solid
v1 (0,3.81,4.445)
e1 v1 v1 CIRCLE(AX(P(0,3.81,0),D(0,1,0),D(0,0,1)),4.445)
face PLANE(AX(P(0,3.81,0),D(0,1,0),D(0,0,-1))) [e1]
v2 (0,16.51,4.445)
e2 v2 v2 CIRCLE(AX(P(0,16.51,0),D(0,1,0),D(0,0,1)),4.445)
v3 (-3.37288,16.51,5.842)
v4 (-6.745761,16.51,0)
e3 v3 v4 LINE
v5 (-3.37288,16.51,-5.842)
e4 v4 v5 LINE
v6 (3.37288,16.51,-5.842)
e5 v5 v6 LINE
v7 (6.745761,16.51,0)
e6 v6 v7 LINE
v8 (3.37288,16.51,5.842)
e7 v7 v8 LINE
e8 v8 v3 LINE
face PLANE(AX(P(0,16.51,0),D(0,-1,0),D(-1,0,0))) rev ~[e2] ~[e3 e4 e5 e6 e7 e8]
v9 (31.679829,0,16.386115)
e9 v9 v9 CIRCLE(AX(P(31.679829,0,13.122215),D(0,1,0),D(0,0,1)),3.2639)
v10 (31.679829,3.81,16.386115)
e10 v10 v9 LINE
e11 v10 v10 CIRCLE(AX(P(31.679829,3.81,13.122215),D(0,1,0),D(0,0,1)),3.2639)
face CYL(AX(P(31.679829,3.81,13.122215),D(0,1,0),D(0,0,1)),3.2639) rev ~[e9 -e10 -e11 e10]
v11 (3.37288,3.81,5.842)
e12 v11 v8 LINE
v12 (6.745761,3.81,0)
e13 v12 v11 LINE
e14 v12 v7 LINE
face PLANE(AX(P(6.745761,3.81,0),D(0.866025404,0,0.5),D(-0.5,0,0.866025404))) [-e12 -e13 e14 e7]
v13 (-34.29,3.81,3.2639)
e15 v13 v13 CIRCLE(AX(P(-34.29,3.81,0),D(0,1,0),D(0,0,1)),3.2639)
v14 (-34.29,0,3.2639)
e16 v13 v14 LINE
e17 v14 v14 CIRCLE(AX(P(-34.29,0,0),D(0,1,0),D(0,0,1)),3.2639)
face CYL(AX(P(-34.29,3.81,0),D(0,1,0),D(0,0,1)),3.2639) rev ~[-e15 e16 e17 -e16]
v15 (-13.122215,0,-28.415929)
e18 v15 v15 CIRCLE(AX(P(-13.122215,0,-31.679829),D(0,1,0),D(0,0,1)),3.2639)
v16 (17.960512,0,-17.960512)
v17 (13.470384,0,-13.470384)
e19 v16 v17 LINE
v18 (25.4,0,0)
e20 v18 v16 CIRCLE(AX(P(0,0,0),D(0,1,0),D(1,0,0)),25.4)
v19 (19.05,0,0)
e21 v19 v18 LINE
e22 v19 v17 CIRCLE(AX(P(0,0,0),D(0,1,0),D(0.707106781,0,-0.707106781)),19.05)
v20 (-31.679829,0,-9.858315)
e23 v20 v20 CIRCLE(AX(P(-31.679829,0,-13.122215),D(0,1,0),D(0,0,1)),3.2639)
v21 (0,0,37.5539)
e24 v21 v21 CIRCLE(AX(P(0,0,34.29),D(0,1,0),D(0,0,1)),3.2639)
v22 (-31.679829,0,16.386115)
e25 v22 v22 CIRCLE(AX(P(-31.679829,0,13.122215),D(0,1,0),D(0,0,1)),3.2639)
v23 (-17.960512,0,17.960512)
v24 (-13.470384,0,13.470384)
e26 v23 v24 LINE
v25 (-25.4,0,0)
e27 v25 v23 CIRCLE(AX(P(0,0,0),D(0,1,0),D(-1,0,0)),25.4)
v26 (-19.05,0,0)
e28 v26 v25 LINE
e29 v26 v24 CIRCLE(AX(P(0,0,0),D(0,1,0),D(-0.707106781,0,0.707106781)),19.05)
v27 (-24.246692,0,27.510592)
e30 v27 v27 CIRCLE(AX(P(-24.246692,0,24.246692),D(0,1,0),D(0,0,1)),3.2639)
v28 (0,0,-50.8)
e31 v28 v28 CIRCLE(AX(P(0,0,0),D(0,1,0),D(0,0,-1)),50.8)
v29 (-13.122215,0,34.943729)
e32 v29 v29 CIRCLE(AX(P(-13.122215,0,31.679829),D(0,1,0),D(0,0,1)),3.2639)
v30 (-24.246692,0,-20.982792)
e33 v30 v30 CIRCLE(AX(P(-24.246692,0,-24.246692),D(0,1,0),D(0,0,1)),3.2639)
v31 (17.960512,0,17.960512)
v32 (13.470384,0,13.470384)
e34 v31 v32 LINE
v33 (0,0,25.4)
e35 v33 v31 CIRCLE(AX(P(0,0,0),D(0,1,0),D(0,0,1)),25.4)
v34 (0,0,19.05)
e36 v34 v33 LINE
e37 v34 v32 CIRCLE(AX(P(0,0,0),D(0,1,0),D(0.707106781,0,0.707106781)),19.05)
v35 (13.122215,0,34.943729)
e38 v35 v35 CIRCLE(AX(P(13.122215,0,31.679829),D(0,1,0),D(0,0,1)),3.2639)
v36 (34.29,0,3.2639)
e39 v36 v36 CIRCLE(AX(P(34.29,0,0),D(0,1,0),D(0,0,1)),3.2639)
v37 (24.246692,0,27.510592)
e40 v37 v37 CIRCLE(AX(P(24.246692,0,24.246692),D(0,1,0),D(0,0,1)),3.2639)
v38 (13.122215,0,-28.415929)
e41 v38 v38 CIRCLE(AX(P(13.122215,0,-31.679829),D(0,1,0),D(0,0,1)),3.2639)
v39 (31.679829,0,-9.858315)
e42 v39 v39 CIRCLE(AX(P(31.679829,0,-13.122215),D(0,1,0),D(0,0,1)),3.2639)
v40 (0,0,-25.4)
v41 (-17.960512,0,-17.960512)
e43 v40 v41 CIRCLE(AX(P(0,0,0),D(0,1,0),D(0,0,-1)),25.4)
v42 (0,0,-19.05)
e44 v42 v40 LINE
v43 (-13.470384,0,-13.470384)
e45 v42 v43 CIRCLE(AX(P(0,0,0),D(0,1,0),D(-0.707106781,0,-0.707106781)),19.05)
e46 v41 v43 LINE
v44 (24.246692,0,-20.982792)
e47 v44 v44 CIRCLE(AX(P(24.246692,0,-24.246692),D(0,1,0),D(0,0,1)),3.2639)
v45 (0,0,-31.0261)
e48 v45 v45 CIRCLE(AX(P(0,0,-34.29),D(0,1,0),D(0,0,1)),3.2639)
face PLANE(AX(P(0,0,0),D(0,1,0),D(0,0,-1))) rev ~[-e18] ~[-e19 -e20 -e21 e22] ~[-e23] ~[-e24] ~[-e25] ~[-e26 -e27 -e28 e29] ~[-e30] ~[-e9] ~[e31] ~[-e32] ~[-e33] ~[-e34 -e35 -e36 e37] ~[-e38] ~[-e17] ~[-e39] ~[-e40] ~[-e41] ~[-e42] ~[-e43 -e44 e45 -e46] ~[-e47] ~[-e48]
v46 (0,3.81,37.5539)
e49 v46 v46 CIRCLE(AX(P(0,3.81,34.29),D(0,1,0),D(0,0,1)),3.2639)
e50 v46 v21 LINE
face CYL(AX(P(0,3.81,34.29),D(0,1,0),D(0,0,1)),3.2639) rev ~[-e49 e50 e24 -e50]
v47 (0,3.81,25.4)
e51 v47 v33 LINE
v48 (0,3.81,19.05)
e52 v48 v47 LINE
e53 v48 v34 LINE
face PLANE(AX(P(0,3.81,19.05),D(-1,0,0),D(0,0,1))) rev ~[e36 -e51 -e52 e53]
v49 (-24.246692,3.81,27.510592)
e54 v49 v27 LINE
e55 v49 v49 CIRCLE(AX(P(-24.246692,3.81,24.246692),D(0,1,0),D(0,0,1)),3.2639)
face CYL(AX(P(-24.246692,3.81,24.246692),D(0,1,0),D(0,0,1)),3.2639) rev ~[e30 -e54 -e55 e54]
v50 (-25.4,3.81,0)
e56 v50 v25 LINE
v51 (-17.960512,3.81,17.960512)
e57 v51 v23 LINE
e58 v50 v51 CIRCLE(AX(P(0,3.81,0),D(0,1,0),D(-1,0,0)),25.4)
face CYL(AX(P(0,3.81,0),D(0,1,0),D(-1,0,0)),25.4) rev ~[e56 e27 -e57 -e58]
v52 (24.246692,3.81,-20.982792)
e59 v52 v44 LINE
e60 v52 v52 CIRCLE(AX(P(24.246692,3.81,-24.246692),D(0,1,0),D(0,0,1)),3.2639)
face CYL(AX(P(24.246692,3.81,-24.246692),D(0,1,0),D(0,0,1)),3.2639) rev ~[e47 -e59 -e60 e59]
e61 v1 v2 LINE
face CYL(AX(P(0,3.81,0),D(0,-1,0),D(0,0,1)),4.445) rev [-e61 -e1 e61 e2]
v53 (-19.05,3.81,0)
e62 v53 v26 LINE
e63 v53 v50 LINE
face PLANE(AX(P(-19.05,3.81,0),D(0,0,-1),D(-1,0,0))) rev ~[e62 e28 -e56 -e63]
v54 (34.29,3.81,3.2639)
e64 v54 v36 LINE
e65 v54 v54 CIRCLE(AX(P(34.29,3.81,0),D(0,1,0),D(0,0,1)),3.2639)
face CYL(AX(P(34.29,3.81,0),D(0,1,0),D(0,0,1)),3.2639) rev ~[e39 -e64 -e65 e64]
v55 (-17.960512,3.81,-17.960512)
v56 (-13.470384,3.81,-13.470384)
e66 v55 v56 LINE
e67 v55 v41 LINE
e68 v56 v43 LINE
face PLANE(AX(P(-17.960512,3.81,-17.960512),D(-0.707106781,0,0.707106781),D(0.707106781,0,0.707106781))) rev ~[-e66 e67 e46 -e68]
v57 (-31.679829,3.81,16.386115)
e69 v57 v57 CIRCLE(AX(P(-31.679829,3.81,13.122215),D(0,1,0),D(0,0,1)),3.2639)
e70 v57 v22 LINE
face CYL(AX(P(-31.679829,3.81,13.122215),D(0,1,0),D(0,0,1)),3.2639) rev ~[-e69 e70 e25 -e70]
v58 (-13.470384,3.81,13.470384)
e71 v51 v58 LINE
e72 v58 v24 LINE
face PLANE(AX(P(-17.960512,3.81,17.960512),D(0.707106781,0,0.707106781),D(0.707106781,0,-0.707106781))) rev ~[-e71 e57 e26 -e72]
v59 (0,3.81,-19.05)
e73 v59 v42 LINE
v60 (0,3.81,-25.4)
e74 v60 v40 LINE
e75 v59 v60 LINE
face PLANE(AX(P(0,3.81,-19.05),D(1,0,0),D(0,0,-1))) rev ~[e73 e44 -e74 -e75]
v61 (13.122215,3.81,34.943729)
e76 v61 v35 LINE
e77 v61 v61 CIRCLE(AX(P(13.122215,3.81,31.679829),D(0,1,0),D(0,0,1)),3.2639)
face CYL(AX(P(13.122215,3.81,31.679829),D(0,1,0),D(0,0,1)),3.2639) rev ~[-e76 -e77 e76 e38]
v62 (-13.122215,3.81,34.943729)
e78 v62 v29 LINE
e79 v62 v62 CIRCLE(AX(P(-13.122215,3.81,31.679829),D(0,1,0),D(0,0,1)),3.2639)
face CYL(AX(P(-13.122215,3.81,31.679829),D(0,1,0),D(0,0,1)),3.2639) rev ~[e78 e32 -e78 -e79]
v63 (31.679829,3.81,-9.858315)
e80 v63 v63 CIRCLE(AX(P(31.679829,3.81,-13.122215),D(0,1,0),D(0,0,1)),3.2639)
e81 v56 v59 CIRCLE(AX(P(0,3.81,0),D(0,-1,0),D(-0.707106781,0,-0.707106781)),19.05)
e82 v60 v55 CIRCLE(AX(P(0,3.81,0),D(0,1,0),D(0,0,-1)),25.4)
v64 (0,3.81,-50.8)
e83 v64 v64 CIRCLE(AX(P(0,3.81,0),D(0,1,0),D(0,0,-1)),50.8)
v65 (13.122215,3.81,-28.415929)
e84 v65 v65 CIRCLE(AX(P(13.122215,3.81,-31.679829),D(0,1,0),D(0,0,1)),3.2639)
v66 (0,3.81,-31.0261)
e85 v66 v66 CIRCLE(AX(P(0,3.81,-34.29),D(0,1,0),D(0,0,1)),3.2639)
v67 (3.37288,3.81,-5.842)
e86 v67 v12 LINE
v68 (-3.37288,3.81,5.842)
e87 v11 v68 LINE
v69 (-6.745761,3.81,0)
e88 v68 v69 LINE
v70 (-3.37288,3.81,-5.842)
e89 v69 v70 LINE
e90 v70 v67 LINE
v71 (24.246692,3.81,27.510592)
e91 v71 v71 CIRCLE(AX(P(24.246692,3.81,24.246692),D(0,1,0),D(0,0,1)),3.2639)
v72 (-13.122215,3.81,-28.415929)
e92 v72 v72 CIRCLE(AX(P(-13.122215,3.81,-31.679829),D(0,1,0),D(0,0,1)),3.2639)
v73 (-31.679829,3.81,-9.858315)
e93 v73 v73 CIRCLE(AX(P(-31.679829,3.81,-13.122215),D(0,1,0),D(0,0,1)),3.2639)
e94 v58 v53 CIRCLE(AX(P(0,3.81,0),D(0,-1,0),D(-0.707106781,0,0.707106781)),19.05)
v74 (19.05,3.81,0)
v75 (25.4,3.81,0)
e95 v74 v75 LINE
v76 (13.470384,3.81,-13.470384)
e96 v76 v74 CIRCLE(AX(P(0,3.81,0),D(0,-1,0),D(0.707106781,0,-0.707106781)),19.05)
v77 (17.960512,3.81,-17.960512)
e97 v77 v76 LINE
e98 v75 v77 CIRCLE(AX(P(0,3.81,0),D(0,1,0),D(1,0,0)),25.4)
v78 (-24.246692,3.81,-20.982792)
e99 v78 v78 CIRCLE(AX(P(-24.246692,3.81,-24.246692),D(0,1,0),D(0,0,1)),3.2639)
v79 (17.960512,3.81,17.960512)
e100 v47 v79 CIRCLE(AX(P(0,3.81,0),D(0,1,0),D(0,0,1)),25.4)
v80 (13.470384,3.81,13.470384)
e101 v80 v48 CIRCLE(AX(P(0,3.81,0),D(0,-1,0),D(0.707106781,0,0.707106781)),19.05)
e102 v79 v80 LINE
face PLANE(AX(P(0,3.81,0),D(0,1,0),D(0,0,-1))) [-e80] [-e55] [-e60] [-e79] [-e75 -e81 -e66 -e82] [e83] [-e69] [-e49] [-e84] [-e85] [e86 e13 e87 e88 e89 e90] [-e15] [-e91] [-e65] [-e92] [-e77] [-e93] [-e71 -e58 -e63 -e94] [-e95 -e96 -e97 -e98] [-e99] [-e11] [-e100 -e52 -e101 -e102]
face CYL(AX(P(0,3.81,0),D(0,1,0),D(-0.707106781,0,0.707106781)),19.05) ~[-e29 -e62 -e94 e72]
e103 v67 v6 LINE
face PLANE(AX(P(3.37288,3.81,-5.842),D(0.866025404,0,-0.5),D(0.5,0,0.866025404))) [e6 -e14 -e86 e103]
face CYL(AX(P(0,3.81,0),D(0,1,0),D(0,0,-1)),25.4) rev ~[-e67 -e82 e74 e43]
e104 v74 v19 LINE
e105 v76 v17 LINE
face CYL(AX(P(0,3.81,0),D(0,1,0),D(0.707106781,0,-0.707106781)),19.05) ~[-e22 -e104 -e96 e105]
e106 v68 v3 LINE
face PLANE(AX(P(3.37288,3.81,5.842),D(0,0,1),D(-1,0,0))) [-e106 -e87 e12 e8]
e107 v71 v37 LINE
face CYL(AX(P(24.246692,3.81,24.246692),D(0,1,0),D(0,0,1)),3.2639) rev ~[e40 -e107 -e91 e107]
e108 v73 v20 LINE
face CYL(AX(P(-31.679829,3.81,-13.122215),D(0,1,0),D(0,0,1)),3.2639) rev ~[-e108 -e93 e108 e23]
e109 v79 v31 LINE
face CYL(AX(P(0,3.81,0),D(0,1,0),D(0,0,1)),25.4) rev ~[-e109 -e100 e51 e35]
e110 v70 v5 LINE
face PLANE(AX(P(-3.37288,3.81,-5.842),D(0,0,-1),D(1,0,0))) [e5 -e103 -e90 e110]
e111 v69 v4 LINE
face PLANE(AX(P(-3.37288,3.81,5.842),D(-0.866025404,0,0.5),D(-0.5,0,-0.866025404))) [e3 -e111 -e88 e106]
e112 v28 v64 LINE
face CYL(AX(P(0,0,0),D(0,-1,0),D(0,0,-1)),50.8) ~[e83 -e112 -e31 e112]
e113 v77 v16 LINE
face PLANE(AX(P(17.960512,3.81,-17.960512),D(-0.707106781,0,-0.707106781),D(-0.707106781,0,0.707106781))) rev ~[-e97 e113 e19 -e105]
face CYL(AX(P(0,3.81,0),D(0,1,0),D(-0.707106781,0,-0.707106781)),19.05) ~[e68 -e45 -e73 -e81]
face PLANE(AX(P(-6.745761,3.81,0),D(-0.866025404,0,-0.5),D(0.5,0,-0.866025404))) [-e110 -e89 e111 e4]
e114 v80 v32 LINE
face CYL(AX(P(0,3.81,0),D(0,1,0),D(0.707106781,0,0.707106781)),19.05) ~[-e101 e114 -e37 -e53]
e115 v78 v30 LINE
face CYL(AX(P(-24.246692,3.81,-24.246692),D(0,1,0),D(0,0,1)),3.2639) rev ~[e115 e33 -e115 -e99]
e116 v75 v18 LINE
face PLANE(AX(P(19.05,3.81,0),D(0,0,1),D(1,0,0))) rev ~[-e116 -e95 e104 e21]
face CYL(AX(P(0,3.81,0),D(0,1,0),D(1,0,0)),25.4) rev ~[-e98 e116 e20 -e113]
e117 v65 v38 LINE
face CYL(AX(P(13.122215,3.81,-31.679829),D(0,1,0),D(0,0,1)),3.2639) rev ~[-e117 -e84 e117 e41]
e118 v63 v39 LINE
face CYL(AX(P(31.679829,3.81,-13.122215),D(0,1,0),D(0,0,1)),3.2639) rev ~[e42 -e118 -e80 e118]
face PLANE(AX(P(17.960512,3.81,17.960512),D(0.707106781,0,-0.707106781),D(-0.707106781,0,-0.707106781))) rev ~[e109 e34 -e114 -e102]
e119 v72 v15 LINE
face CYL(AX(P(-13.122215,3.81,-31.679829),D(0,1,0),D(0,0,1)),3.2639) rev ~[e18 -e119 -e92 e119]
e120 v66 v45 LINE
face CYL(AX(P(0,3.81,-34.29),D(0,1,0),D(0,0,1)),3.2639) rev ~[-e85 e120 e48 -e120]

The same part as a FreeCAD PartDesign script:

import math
import FreeCAD as App
import Part
import Sketcher
from FreeCAD import Vector
Q = App.Units.Quantity

doc = App.newDocument("Part")
body = doc.addObject("PartDesign::Body", "Body")

# Sketch on XZ plane
sketch1 = body.newObject("Sketcher::SketchObject", "Sketch")
sketch1.AttachmentSupport = (doc.getObject("XZ_Plane"), [""])
sketch1.MapMode = "FlatFace"
sketch1.addGeometry(Part.Circle(Vector(0, 0, 0), Vector(0, 0, 1), 51), False)
sketch1.addConstraint([
    Sketcher.Constraint("Coincident", 0, 3, -1, 1),
    Sketcher.Constraint("Diameter", 0, Q("4 in")),
])
pad1 = body.newObject("PartDesign::Pad", "Pad")
pad1.Profile = sketch1
pad1.Length = Q("0.15 in")
pad1.Reversed = True

# Sketch on XZ plane
sketch2 = body.newObject("Sketcher::SketchObject", "Sketch001")
sketch2.AttachmentSupport = (doc.getObject("XZ_Plane"), [""])
sketch2.MapMode = "FlatFace"
sketch2.AttachmentOffset = App.Placement(Vector(0, 0, -0.15 * 25.4), App.Rotation())
sketch2.addGeometry([
    Part.ArcOfCircle(Part.Circle(Vector(0, 0, 0), Vector(0, 0, 1), 19), math.radians(-135), math.radians(-90)),  # 0
    Part.LineSegment(Vector(0, -19, 0), Vector(0, -25, 0)),  # 1
    Part.ArcOfCircle(Part.Circle(Vector(0, 0, 0), Vector(0, 0, 1), 25), math.radians(-135), math.radians(-90)),  # 2
    Part.LineSegment(Vector(-18, -18, 0), Vector(-13, -13, 0)),  # 3
    Part.LineSegment(Vector(-18, 18, 0), Vector(-13, 13, 0)),  # 4
    Part.ArcOfCircle(Part.Circle(Vector(0, 0, 0), Vector(0, 0, 1), 19), math.radians(135), math.radians(180)),  # 5
    Part.LineSegment(Vector(-19, 0, 0), Vector(-25, 0, 0)),  # 6
    Part.ArcOfCircle(Part.Circle(Vector(0, 0, 0), Vector(0, 0, 1), 25), math.radians(135), math.radians(180)),  # 7
    Part.LineSegment(Vector(18, 18, 0), Vector(13, 13, 0)),  # 8
    Part.ArcOfCircle(Part.Circle(Vector(0, 0, 0), Vector(0, 0, 1), 19), math.radians(45), math.radians(90)),  # 9
    Part.LineSegment(Vector(0, 19, 0), Vector(0, 25, 0)),  # 10
    Part.ArcOfCircle(Part.Circle(Vector(0, 0, 0), Vector(0, 0, 1), 25), math.radians(45), math.radians(90)),  # 11
    Part.LineSegment(Vector(18, -18, 0), Vector(13, -13, 0)),  # 12
    Part.ArcOfCircle(Part.Circle(Vector(0, 0, 0), Vector(0, 0, 1), 19), math.radians(-45), math.radians(0)),  # 13
    Part.LineSegment(Vector(19, 0, 0), Vector(25, 0, 0)),  # 14
    Part.ArcOfCircle(Part.Circle(Vector(0, 0, 0), Vector(0, 0, 1), 25), math.radians(-45), math.radians(0)),  # 15
], False)
sketch2.addConstraint([
    Sketcher.Constraint("Coincident", 0, 2, 1, 1),
    Sketcher.Constraint("Coincident", 1, 2, 2, 2),
    Sketcher.Constraint("Coincident", 2, 1, 3, 1),
    Sketcher.Constraint("Coincident", 3, 2, 0, 1),
    Sketcher.Constraint("Coincident", 4, 2, 5, 1),
    Sketcher.Constraint("Coincident", 5, 2, 6, 1),
    Sketcher.Constraint("Coincident", 6, 2, 7, 2),
    Sketcher.Constraint("Coincident", 7, 1, 4, 1),
    Sketcher.Constraint("Coincident", 8, 2, 9, 1),
    Sketcher.Constraint("Coincident", 9, 2, 10, 1),
    Sketcher.Constraint("Coincident", 10, 2, 11, 2),
    Sketcher.Constraint("Coincident", 11, 1, 8, 1),
    Sketcher.Constraint("Coincident", 12, 2, 13, 1),
    Sketcher.Constraint("Coincident", 13, 2, 14, 1),
    Sketcher.Constraint("Coincident", 14, 2, 15, 2),
    Sketcher.Constraint("Coincident", 15, 1, 12, 1),
    Sketcher.Constraint("Vertical", 1),
    Sketcher.Constraint("Horizontal", 6),
    Sketcher.Constraint("Vertical", 10),
    Sketcher.Constraint("Horizontal", 14),
    Sketcher.Constraint("Coincident", 0, 3, -1, 1),
    Sketcher.Constraint("Coincident", 2, 3, -1, 1),
    Sketcher.Constraint("Coincident", 5, 3, -1, 1),
    Sketcher.Constraint("Coincident", 7, 3, -1, 1),
    Sketcher.Constraint("Coincident", 9, 3, -1, 1),
    Sketcher.Constraint("Coincident", 11, 3, -1, 1),
    Sketcher.Constraint("Coincident", 13, 3, -1, 1),
    Sketcher.Constraint("Coincident", 15, 3, -1, 1),
    Sketcher.Constraint("Equal", 0, 5),
    Sketcher.Constraint("Equal", 2, 7),
    Sketcher.Constraint("Equal", 5, 9),
    Sketcher.Constraint("Equal", 7, 11),
    Sketcher.Constraint("Equal", 9, 13),
    Sketcher.Constraint("Equal", 11, 15),
    Sketcher.Constraint("PointOnObject", 0, 2, -2),
    Sketcher.Constraint("PointOnObject", 5, 2, -1),
    Sketcher.Constraint("PointOnObject", 9, 2, -2),
    Sketcher.Constraint("PointOnObject", 13, 2, -1),
    Sketcher.Constraint("Perpendicular", 3, 4),
    Sketcher.Constraint("Perpendicular", 4, 8),
    Sketcher.Constraint("Perpendicular", 8, 12),
    Sketcher.Constraint("Horizontal", 4, 2, 8, 2),
    Sketcher.Constraint("Horizontal", 7, 1, 11, 1),
    Sketcher.Constraint("Horizontal", 3, 2, 12, 2),
    Sketcher.Constraint("Vertical", 3, 2, 4, 2),
    Sketcher.Constraint("Radius", 2, Q("1 in")),
    Sketcher.Constraint("Radius", 0, Q("0.75 in")),
    Sketcher.Constraint("DistanceX", 2, 1, -1, 1, Q("17.960512 mm")),
])
pocket1 = body.newObject("PartDesign::Pocket", "Pocket")
pocket1.Profile = sketch2
pocket1.Type = "ThroughAll"
pocket1.Reversed = True

# Sketch on XZ plane
sketch3 = body.newObject("Sketcher::SketchObject", "Sketch002")
sketch3.AttachmentSupport = (doc.getObject("XZ_Plane"), [""])
sketch3.MapMode = "FlatFace"
sketch3.AttachmentOffset = App.Placement(Vector(0, 0, -0.15 * 25.4), App.Rotation())
sketch3.addGeometry([
    Part.Circle(Vector(13.1, -31.7, 0), Vector(0, 0, 1), 3.3),  # 0
    Part.Circle(Vector(24.2, -24.2, 0), Vector(0, 0, 1), 3.3),  # 1
    Part.Circle(Vector(31.7, -13.1, 0), Vector(0, 0, 1), 3.3),  # 2
    Part.Circle(Vector(31.7, 13.1, 0), Vector(0, 0, 1), 3.3),  # 3
    Part.Circle(Vector(24.2, 24.2, 0), Vector(0, 0, 1), 3.3),  # 4
    Part.Circle(Vector(13.1, 31.7, 0), Vector(0, 0, 1), 3.3),  # 5
    Part.Circle(Vector(0, 34.3, 0), Vector(0, 0, 1), 3.3),  # 6
    Part.Circle(Vector(-13.1, 31.7, 0), Vector(0, 0, 1), 3.3),  # 7
    Part.Circle(Vector(-24.2, 24.2, 0), Vector(0, 0, 1), 3.3),  # 8
    Part.Circle(Vector(-31.7, 13.1, 0), Vector(0, 0, 1), 3.3),  # 9
    Part.Circle(Vector(-34.3, 0, 0), Vector(0, 0, 1), 3.3),  # 10
    Part.Circle(Vector(-31.7, -13.1, 0), Vector(0, 0, 1), 3.3),  # 11
    Part.Circle(Vector(-24.2, -24.2, 0), Vector(0, 0, 1), 3.3),  # 12
    Part.Circle(Vector(-13.1, -31.7, 0), Vector(0, 0, 1), 3.3),  # 13
    Part.Circle(Vector(0, -34.3, 0), Vector(0, 0, 1), 3.3),  # 14
    Part.Circle(Vector(34.3, 0, 0), Vector(0, 0, 1), 3.3),  # 15
], False)
sketch3.addConstraint([
    Sketcher.Constraint("Equal", 0, 1),
    Sketcher.Constraint("Equal", 1, 2),
    Sketcher.Constraint("Equal", 2, 3),
    Sketcher.Constraint("Equal", 3, 4),
    Sketcher.Constraint("Equal", 4, 5),
    Sketcher.Constraint("Equal", 5, 6),
    Sketcher.Constraint("Equal", 6, 7),
    Sketcher.Constraint("Equal", 7, 8),
    Sketcher.Constraint("Equal", 8, 9),
    Sketcher.Constraint("Equal", 9, 10),
    Sketcher.Constraint("Equal", 10, 11),
    Sketcher.Constraint("Equal", 11, 12),
    Sketcher.Constraint("Equal", 12, 13),
    Sketcher.Constraint("Equal", 13, 14),
    Sketcher.Constraint("Equal", 14, 15),
    Sketcher.Constraint("Symmetric", 0, 3, 7, 3, -1, 1),
    Sketcher.Constraint("Symmetric", 1, 3, 8, 3, -1, 1),
    Sketcher.Constraint("Symmetric", 2, 3, 9, 3, -1, 1),
    Sketcher.Constraint("Symmetric", 3, 3, 11, 3, -1, 1),
    Sketcher.Constraint("Symmetric", 4, 3, 12, 3, -1, 1),
    Sketcher.Constraint("Symmetric", 5, 3, 13, 3, -1, 1),
    Sketcher.Constraint("Symmetric", 6, 3, 14, 3, -1, 1),
    Sketcher.Constraint("Symmetric", 10, 3, 15, 3, -1, 1),
    Sketcher.Constraint("Symmetric", 5, 3, 7, 3, -2),
    Sketcher.Constraint("Symmetric", 4, 3, 8, 3, -2),
    Sketcher.Constraint("Symmetric", 3, 3, 9, 3, -2),
    Sketcher.Constraint("PointOnObject", 6, 3, -2),
    Sketcher.Constraint("PointOnObject", 10, 3, -1),
    Sketcher.Constraint("Diameter", 0, Q("0.257 in")),
    Sketcher.Constraint("DistanceY", -1, 1, 6, 3, Q("1.35 in")),
    Sketcher.Constraint("DistanceX", 10, 3, -1, 1, Q("1.35 in")),
    Sketcher.Constraint("DistanceY", 0, 3, -1, 1, Q("31.679829 mm")),
    Sketcher.Constraint("DistanceX", -1, 1, 1, 3, Q("24.246692 mm")),
    Sketcher.Constraint("DistanceY", 1, 3, -1, 1, Q("24.246692 mm")),
    Sketcher.Constraint("DistanceX", -1, 1, 2, 3, Q("31.679829 mm")),
    Sketcher.Constraint("DistanceY", 2, 3, 3, 3, Q("26.24443 mm")),
    Sketcher.Constraint("DistanceX", 7, 3, 5, 3, Q("26.24443 mm")),
])
pocket2 = body.newObject("PartDesign::Pocket", "Pocket001")
pocket2.Profile = sketch3
pocket2.Type = "ThroughAll"
pocket2.Reversed = True

# Sketch on XZ plane
sketch4 = body.newObject("Sketcher::SketchObject", "Sketch003")
sketch4.AttachmentSupport = (doc.getObject("XZ_Plane"), [""])
sketch4.MapMode = "FlatFace"
sketch4.AttachmentOffset = App.Placement(Vector(0, 0, -0.15 * 25.4), App.Rotation())
sketch4.addGeometry([
    Part.LineSegment(Vector(-3.4, -5.8, 0), Vector(-6.7, 0, 0)),  # 0
    Part.LineSegment(Vector(-6.7, 0, 0), Vector(-3.4, 5.8, 0)),  # 1
    Part.LineSegment(Vector(-3.4, 5.8, 0), Vector(3.4, 5.8, 0)),  # 2
    Part.LineSegment(Vector(3.4, 5.8, 0), Vector(6.7, 0, 0)),  # 3
    Part.LineSegment(Vector(6.7, 0, 0), Vector(3.4, -5.8, 0)),  # 4
    Part.LineSegment(Vector(3.4, -5.8, 0), Vector(-3.4, -5.8, 0)),  # 5
    Part.Circle(Vector(0, 0, 0), Vector(0, 0, 1), 4.4),  # 6
], False)
sketch4.addConstraint([
    Sketcher.Constraint("Coincident", 0, 2, 1, 1),
    Sketcher.Constraint("Coincident", 1, 2, 2, 1),
    Sketcher.Constraint("Coincident", 2, 2, 3, 1),
    Sketcher.Constraint("Coincident", 3, 2, 4, 1),
    Sketcher.Constraint("Coincident", 4, 2, 5, 1),
    Sketcher.Constraint("Coincident", 5, 2, 0, 1),
    Sketcher.Constraint("Horizontal", 2),
    Sketcher.Constraint("Horizontal", 5),
    Sketcher.Constraint("Coincident", 6, 3, -1, 1),
    Sketcher.Constraint("Symmetric", 0, 2, 3, 2, -1, 1),
    Sketcher.Constraint("Symmetric", 1, 2, 4, 2, -1, 1),
    Sketcher.Constraint("PointOnObject", 0, 2, -1),
    Sketcher.Constraint("Parallel", 0, 3),
    Sketcher.Constraint("Vertical", 2, 2, 4, 2),
    Sketcher.Constraint("Diameter", 6, Q("0.35 in")),
    Sketcher.Constraint("Angle", 0, Q("120 deg")),
    Sketcher.Constraint("DistanceY", -1, 1, 1, 2, Q("0.23 in")),
    Sketcher.Constraint("DistanceX", 2, 1, 2, 2, Q("6.745761 mm")),
])
pad2 = body.newObject("PartDesign::Pad", "Pad001")
pad2.Profile = sketch4
pad2.Length = Q("0.5 in")
pad2.Reversed = True

doc.recompute()
